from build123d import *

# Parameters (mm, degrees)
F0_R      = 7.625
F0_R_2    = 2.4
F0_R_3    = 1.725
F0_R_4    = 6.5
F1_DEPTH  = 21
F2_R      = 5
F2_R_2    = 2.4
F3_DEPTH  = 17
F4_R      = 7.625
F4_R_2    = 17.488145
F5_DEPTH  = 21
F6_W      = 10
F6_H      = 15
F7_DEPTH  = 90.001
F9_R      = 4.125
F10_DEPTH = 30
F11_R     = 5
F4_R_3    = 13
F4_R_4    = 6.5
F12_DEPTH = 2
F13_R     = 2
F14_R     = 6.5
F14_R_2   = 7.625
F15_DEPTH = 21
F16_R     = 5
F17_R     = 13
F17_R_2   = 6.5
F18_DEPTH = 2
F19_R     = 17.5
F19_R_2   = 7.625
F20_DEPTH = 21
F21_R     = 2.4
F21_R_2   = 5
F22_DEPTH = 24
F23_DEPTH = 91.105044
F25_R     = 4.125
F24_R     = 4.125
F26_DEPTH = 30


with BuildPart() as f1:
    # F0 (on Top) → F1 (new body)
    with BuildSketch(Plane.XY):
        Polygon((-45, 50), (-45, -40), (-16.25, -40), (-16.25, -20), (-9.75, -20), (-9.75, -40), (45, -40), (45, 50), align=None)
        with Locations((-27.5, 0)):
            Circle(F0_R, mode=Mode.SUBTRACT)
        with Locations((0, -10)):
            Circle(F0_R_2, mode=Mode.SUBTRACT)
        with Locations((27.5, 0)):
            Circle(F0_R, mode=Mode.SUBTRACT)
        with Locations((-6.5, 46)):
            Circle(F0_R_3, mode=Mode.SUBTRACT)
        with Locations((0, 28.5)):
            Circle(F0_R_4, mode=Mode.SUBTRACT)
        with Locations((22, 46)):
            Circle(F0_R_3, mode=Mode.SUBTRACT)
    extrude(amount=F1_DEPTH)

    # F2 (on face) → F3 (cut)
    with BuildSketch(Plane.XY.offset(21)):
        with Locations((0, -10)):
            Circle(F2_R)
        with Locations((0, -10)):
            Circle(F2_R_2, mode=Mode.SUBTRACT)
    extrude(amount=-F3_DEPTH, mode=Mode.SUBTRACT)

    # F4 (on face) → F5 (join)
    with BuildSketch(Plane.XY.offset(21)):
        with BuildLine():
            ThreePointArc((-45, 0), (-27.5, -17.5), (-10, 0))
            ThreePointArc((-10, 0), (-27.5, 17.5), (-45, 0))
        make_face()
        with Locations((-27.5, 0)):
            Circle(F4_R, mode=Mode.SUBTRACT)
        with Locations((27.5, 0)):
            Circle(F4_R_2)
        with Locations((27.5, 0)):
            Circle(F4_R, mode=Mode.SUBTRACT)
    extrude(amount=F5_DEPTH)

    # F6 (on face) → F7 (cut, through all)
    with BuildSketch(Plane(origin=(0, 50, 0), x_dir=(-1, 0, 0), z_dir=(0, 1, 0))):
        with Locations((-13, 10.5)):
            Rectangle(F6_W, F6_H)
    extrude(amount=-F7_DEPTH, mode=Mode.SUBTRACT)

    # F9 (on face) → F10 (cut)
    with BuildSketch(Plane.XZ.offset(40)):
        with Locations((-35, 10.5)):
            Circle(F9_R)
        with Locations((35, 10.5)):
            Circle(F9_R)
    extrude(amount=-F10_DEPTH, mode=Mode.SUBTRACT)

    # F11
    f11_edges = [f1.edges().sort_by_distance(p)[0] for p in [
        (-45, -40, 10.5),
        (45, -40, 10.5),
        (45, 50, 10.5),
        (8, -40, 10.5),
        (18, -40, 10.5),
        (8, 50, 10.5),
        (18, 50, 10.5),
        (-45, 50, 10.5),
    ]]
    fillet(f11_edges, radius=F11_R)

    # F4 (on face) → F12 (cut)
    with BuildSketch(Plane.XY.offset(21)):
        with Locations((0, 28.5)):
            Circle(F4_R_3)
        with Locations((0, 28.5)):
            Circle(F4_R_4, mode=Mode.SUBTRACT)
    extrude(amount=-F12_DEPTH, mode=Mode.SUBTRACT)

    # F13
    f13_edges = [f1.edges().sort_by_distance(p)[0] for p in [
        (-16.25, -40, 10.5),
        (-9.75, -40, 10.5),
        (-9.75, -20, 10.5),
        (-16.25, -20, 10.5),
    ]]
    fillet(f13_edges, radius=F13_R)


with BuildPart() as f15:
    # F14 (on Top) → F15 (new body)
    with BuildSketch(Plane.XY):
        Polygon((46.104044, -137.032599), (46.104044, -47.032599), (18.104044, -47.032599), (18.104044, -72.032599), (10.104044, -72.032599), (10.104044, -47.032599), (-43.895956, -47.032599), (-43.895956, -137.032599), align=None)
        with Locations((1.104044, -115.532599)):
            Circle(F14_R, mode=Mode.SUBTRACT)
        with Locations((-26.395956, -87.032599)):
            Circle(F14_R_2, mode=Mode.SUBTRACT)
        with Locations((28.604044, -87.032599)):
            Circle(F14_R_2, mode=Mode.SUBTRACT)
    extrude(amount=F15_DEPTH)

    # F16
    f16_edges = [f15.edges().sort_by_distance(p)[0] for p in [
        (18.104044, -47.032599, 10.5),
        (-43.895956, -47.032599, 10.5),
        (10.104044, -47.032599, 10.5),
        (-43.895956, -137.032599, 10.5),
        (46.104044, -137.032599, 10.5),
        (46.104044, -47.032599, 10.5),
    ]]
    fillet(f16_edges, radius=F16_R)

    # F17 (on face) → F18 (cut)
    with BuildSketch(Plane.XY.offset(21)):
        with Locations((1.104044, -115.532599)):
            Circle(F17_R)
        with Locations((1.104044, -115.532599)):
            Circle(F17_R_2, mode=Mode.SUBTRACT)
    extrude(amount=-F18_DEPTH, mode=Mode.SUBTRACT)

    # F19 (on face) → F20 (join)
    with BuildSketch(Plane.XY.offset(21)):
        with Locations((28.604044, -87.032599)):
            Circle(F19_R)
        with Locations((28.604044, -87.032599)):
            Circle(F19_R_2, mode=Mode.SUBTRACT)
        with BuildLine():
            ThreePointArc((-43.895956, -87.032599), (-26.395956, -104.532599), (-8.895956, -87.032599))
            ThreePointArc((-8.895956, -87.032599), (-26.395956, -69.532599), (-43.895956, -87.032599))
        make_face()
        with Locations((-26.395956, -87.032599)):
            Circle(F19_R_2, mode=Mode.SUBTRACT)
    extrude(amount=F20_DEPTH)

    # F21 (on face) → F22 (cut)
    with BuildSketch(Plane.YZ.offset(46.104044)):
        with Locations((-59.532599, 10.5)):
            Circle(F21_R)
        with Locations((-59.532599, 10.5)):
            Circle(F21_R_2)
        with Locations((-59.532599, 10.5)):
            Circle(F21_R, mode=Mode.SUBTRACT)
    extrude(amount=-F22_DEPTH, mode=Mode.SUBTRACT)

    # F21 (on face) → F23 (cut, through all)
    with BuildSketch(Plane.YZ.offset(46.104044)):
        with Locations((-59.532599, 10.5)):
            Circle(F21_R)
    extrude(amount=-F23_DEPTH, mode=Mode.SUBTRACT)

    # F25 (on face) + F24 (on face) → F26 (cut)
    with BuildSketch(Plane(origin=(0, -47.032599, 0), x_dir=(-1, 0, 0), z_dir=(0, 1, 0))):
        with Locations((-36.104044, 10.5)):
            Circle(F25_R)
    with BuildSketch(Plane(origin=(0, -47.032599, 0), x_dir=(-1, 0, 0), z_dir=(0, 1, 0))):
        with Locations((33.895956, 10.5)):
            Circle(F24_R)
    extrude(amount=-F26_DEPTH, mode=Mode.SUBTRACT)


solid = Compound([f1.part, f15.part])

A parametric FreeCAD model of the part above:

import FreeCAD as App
import Part
import Sketcher
from FreeCAD import Vector


def edges_at(feature, points):
    """Names of the edges that pass closest to the given points."""
    edges = feature.Shape.Edges
    near = lambda p: min(range(len(edges)), key=lambda i: edges[i].distToShape(Part.Vertex(*p))[0])
    return sorted({f"Edge{near(p) + 1}" for p in points})

doc = App.newDocument("Part")
body = doc.addObject("PartDesign::Body", "Body")

# Sketch on XY plane
sketch1 = body.newObject("Sketcher::SketchObject", "Sketch")
sketch1.AttachmentSupport = (doc.getObject("XY_Plane"), [""])
sketch1.MapMode = "FlatFace"
sketch1.addGeometry(Part.LineSegment(Vector(-45, 50, 0), Vector(-45, -40, 0)), False)
sketch1.addGeometry(Part.LineSegment(Vector(-45, -40, 0), Vector(-16.25, -40, 0)), False)
sketch1.addGeometry(Part.LineSegment(Vector(-16.25, -40, 0), Vector(-16.25, -20, 0)), False)
sketch1.addGeometry(Part.LineSegment(Vector(-16.25, -20, 0), Vector(-9.75, -20, 0)), False)
sketch1.addGeometry(Part.LineSegment(Vector(-9.75, -20, 0), Vector(-9.75, -40, 0)), False)
sketch1.addGeometry(Part.LineSegment(Vector(-9.75, -40, 0), Vector(45, -40, 0)), False)
sketch1.addGeometry(Part.LineSegment(Vector(45, -40, 0), Vector(45, 50, 0)), False)
sketch1.addGeometry(Part.LineSegment(Vector(45, 50, 0), Vector(-45, 50, 0)), False)
sketch1.addGeometry(Part.Circle(Vector(-27.5, 0, 0), Vector(0, 0, 1), 7.625), False)
sketch1.addGeometry(Part.Circle(Vector(0, -10, 0), Vector(0, 0, 1), 2.4), False)
sketch1.addGeometry(Part.Circle(Vector(27.5, 0, 0), Vector(0, 0, 1), 7.625), False)
sketch1.addGeometry(Part.Circle(Vector(-6.5, 46, 0), Vector(0, 0, 1), 1.725), False)
sketch1.addGeometry(Part.Circle(Vector(0, 28.5, 0), Vector(0, 0, 1), 6.5), False)
sketch1.addGeometry(Part.Circle(Vector(22, 46, 0), Vector(0, 0, 1), 1.725), False)
sketch1.addConstraint(Sketcher.Constraint("Coincident", 0, 2, 1, 1))
sketch1.addConstraint(Sketcher.Constraint("Coincident", 1, 2, 2, 1))
sketch1.addConstraint(Sketcher.Constraint("Coincident", 2, 2, 3, 1))
sketch1.addConstraint(Sketcher.Constraint("Coincident", 3, 2, 4, 1))
sketch1.addConstraint(Sketcher.Constraint("Coincident", 4, 2, 5, 1))
sketch1.addConstraint(Sketcher.Constraint("Coincident", 5, 2, 6, 1))
sketch1.addConstraint(Sketcher.Constraint("Coincident", 6, 2, 7, 1))
sketch1.addConstraint(Sketcher.Constraint("Coincident", 7, 2, 0, 1))
sketch1.addConstraint(Sketcher.Constraint("Vertical", 0))
sketch1.addConstraint(Sketcher.Constraint("Horizontal", 1))
sketch1.addConstraint(Sketcher.Constraint("Vertical", 2))
sketch1.addConstraint(Sketcher.Constraint("Horizontal", 3))
sketch1.addConstraint(Sketcher.Constraint("Vertical", 4))
sketch1.addConstraint(Sketcher.Constraint("Horizontal", 5))
sketch1.addConstraint(Sketcher.Constraint("Vertical", 6))
sketch1.addConstraint(Sketcher.Constraint("Horizontal", 7))
sketch1.addConstraint(Sketcher.Constraint("Equal", 8, 10))
sketch1.addConstraint(Sketcher.Constraint("Equal", 11, 13))
sketch1.addConstraint(Sketcher.Constraint("Symmetric", 8, 3, 10, 3, -1, 1))
sketch1.addConstraint(Sketcher.Constraint("Symmetric", 0, 2, 5, 2, -2))
sketch1.addConstraint(Sketcher.Constraint("PointOnObject", 8, 3, -1))
sketch1.addConstraint(Sketcher.Constraint("PointOnObject", 9, 3, -2))
sketch1.addConstraint(Sketcher.Constraint("PointOnObject", 12, 3, -2))
sketch1.addConstraint(Sketcher.Constraint("Horizontal", 11, 3, 13, 3))
sketch1.addConstraint(Sketcher.Constraint("Equal", 7, 0))
sketch1.addConstraint(Sketcher.Constraint("Diameter", 12, 13.0))
sketch1.addConstraint(Sketcher.Constraint("Diameter", 9, 4.8))
sketch1.addConstraint(Sketcher.Constraint("Diameter", 8, 15.25))
sketch1.addConstraint(Sketcher.Constraint("Diameter", 11, 3.45))
sketch1.addConstraint(Sketcher.Constraint("DistanceX", 7, 2, 7, 1, 90.0))
sketch1.addConstraint(Sketcher.Constraint("DistanceY", 2, 1, 2, 2, 20.0))
sketch1.addConstraint(Sketcher.Constraint("DistanceX", 3, 1, 3, 2, 6.5))
sketch1.addConstraint(Sketcher.Constraint("DistanceY", 9, 3, -1, 1, 10.0))
sketch1.addConstraint(Sketcher.Constraint("DistanceY", -1, 1, 11, 3, 46.0))
sketch1.addConstraint(Sketcher.Constraint("DistanceX", -1, 1, 13, 3, 22.0))
sketch1.addConstraint(Sketcher.Constraint("DistanceY", 0, 2, -1, 1, 40.0))
sketch1.addConstraint(Sketcher.Constraint("DistanceX", 8, 3, 10, 3, 55.0))
sketch1.addConstraint(Sketcher.Constraint("DistanceX", 8, 3, 11, 3, 21.0))
sketch1.addConstraint(Sketcher.Constraint("DistanceX", 1, 1, 1, 2, 28.75))
sketch1.addConstraint(Sketcher.Constraint("DistanceY", -1, 1, 12, 3, 28.5))
pad1 = body.newObject("PartDesign::Pad", "Pad")
pad1.Profile = sketch1
pad1.Length = 21

# Sketch on XY plane
sketch2 = body.newObject("Sketcher::SketchObject", "Sketch001")
sketch2.AttachmentSupport = (doc.getObject("XY_Plane"), [""])
sketch2.MapMode = "FlatFace"
sketch2.AttachmentOffset = App.Placement(Vector(0, 0, 21), App.Rotation())
sketch2.addGeometry(Part.Circle(Vector(0, -10, 0), Vector(0, 0, 1), 5), False)
sketch2.addGeometry(Part.Circle(Vector(0, -10, 0), Vector(0, 0, 1), 2.4), False)
sketch2.addConstraint(Sketcher.Constraint("Coincident", 1, 3, 0, 3))
sketch2.addConstraint(Sketcher.Constraint("PointOnObject", 0, 3, -2))
sketch2.addConstraint(Sketcher.Constraint("Diameter", 0, 10.0))
sketch2.addConstraint(Sketcher.Constraint("Diameter", 1, 4.8))
sketch2.addConstraint(Sketcher.Constraint("DistanceY", 0, 3, -1, 1, 10.0))
pocket1 = body.newObject("PartDesign::Pocket", "Pocket")
pocket1.Profile = sketch2
pocket1.Length = 17

# Sketch on XY plane
sketch3 = body.newObject("Sketcher::SketchObject", "Sketch002")
sketch3.AttachmentSupport = (doc.getObject("XY_Plane"), [""])
sketch3.MapMode = "FlatFace"
sketch3.AttachmentOffset = App.Placement(Vector(0, 0, 21), App.Rotation())
sketch3.addGeometry(Part.Circle(Vector(-27.5, 0, 0), Vector(0, 0, 1), 17.5), False)
sketch3.addGeometry(Part.Circle(Vector(-27.5, 0, 0), Vector(0, 0, 1), 7.625), False)
sketch3.addGeometry(Part.Circle(Vector(27.5, 0, 0), Vector(0, 0, 1), 17.488145), False)
sketch3.addGeometry(Part.Circle(Vector(27.5, 0, 0), Vector(0, 0, 1), 7.625), False)
sketch3.addConstraint(Sketcher.Constraint("Coincident", 1, 3, 0, 3))
sketch3.addConstraint(Sketcher.Constraint("Coincident", 3, 3, 2, 3))
sketch3.addConstraint(Sketcher.Constraint("Equal", 1, 3))
sketch3.addConstraint(Sketcher.Constraint("Symmetric", 0, 3, 2, 3, -1, 1))
sketch3.addConstraint(Sketcher.Constraint("PointOnObject", 0, 3, -1))
sketch3.addConstraint(Sketcher.Constraint("Diameter", 0, 35.0))
sketch3.addConstraint(Sketcher.Constraint("Diameter", 1, 15.25))
sketch3.addConstraint(Sketcher.Constraint("DistanceX", 0, 3, 2, 3, 55.0))
sketch3.addConstraint(Sketcher.Constraint("Diameter", 2, 34.97629))
pad2 = body.newObject("PartDesign::Pad", "Pad001")
pad2.Profile = sketch3
pad2.Length = 21

# Sketch on XZ plane
sketch4 = body.newObject("Sketcher::SketchObject", "Sketch003")
sketch4.AttachmentSupport = (doc.getObject("XZ_Plane"), [""])
sketch4.MapMode = "FlatFace"
sketch4.AttachmentOffset = App.Placement(Vector(0, 0, -50), App.Rotation())
sketch4.addGeometry(Part.LineSegment(Vector(18, 18, 0), Vector(18, 3, 0)), False)
sketch4.addGeometry(Part.LineSegment(Vector(18, 3, 0), Vector(8, 3, 0)), False)
sketch4.addGeometry(Part.LineSegment(Vector(8, 3, 0), Vector(8, 18, 0)), False)
sketch4.addGeometry(Part.LineSegment(Vector(8, 18, 0), Vector(18, 18, 0)), False)
sketch4.addConstraint(Sketcher.Constraint("Coincident", 0, 2, 1, 1))
sketch4.addConstraint(Sketcher.Constraint("Coincident", 1, 2, 2, 1))
sketch4.addConstraint(Sketcher.Constraint("Coincident", 2, 2, 3, 1))
sketch4.addConstraint(Sketcher.Constraint("Coincident", 3, 2, 0, 1))
sketch4.addConstraint(Sketcher.Constraint("Vertical", 0))
sketch4.addConstraint(Sketcher.Constraint("Horizontal", 1))
sketch4.addConstraint(Sketcher.Constraint("Vertical", 2))
sketch4.addConstraint(Sketcher.Constraint("Horizontal", 3))
sketch4.addConstraint(Sketcher.Constraint("DistanceX", 1, 2, 1, 1, 10.0))
sketch4.addConstraint(Sketcher.Constraint("DistanceY", 0, 2, 0, 1, 15.0))
sketch4.addConstraint(Sketcher.Constraint("DistanceX", -1, 1, 0, 2, 18.0))
sketch4.addConstraint(Sketcher.Constraint("DistanceY", -1, 1, 0, 2, 3.0))
pocket2 = body.newObject("PartDesign::Pocket", "Pocket001")
pocket2.Profile = sketch4
pocket2.Type = "ThroughAll"
pocket2.Reversed = True

# Sketch on XZ plane
sketch5 = body.newObject("Sketcher::SketchObject", "Sketch004")
sketch5.AttachmentSupport = (doc.getObject("XZ_Plane"), [""])
sketch5.MapMode = "FlatFace"
sketch5.AttachmentOffset = App.Placement(Vector(0, 0, 40), App.Rotation())
sketch5.addGeometry(Part.Circle(Vector(-35, 10.5, 0), Vector(0, 0, 1), 4.125), False)
sketch5.addGeometry(Part.Circle(Vector(35, 10.5, 0), Vector(0, 0, 1), 4.125), False)
sketch5.addConstraint(Sketcher.Constraint("Equal", 0, 1))
sketch5.addConstraint(Sketcher.Constraint("Symmetric", 0, 3, 1, 3, -2))
sketch5.addConstraint(Sketcher.Constraint("Diameter", 0, 8.25))
sketch5.addConstraint(Sketcher.Constraint("DistanceX", 0, 3, -1, 1, 35.0))
sketch5.addConstraint(Sketcher.Constraint("DistanceY", -1, 1, 0, 3, 10.5))
pocket3 = body.newObject("PartDesign::Pocket", "Pocket002")
pocket3.Profile = sketch5
pocket3.Length = 30
doc.recompute()

fillet = body.newObject("PartDesign::Fillet", "Fillet")
fillet.Base = (pocket3, edges_at(pocket3, [
    (-45, -40, 10.5),
    (45, -40, 10.5),
    (45, 50, 10.5),
    (8, -40, 10.5),
    (18, -40, 10.5),
    (8, 50, 10.5),
    (18, 50, 10.5),
    (-45, 50, 10.5),
]))
fillet.Radius = 5

# Sketch on XY plane
sketch6 = body.newObject("Sketcher::SketchObject", "Sketch005")
sketch6.AttachmentSupport = (doc.getObject("XY_Plane"), [""])
sketch6.MapMode = "FlatFace"
sketch6.AttachmentOffset = App.Placement(Vector(0, 0, 21), App.Rotation())
sketch6.addGeometry(Part.Circle(Vector(0, 28.5, 0), Vector(0, 0, 1), 13), False)
sketch6.addGeometry(Part.Circle(Vector(0, 28.5, 0), Vector(0, 0, 1), 6.5), False)
sketch6.addConstraint(Sketcher.Constraint("Coincident", 1, 3, 0, 3))
sketch6.addConstraint(Sketcher.Constraint("PointOnObject", 0, 3, -2))
sketch6.addConstraint(Sketcher.Constraint("Diameter", 0, 26.0))
sketch6.addConstraint(Sketcher.Constraint("Diameter", 1, 13.0))
sketch6.addConstraint(Sketcher.Constraint("DistanceY", -1, 1, 0, 3, 28.5))
pocket4 = body.newObject("PartDesign::Pocket", "Pocket003")
pocket4.Profile = sketch6
pocket4.Length = 2
doc.recompute()

fillet2 = body.newObject("PartDesign::Fillet", "Fillet001")
fillet2.Base = (pocket4, edges_at(pocket4, [
    (-16.25, -40, 10.5),
    (-9.75, -40, 10.5),
    (-9.75, -20, 10.5),
    (-16.25, -20, 10.5),
]))
fillet2.Radius = 2
body2 = doc.addObject("PartDesign::Body", "Body001")

# Sketch on XY plane
sketch7 = body2.newObject("Sketcher::SketchObject", "Sketch006")
sketch7.AttachmentSupport = (doc.getObject("XY_Plane001"), [""])
sketch7.MapMode = "FlatFace"
sketch7.addGeometry(Part.LineSegment(Vector(46.104044, -137.032599, 0), Vector(46.104044, -47.032599, 0)), False)
sketch7.addGeometry(Part.LineSegment(Vector(46.104044, -47.032599, 0), Vector(18.104044, -47.032599, 0)), False)
sketch7.addGeometry(Part.LineSegment(Vector(18.104044, -47.032599, 0), Vector(18.104044, -72.032599, 0)), False)
sketch7.addGeometry(Part.LineSegment(Vector(18.104044, -72.032599, 0), Vector(10.104044, -72.032599, 0)), False)
sketch7.addGeometry(Part.LineSegment(Vector(10.104044, -72.032599, 0), Vector(10.104044, -47.032599, 0)), False)
sketch7.addGeometry(Part.LineSegment(Vector(10.104044, -47.032599, 0), Vector(-43.895956, -47.032599, 0)), False)
sketch7.addGeometry(Part.LineSegment(Vector(-43.895956, -47.032599, 0), Vector(-43.895956, -137.032599, 0)), False)
sketch7.addGeometry(Part.LineSegment(Vector(-43.895956, -137.032599, 0), Vector(46.104044, -137.032599, 0)), False)
sketch7.addGeometry(Part.Circle(Vector(1.104044, -115.532599, 0), Vector(0, 0, 1), 6.5), False)
sketch7.addGeometry(Part.Circle(Vector(-26.395956, -87.032599, 0), Vector(0, 0, 1), 7.625), False)
sketch7.addGeometry(Part.Circle(Vector(28.604044, -87.032599, 0), Vector(0, 0, 1), 7.625), False)
sketch7.addConstraint(Sketcher.Constraint("Coincident", 0, 2, 1, 1))
sketch7.addConstraint(Sketcher.Constraint("Coincident", 1, 2, 2, 1))
sketch7.addConstraint(Sketcher.Constraint("Coincident", 2, 2, 3, 1))
sketch7.addConstraint(Sketcher.Constraint("Coincident", 3, 2, 4, 1))
sketch7.addConstraint(Sketcher.Constraint("Coincident", 4, 2, 5, 1))
sketch7.addConstraint(Sketcher.Constraint("Coincident", 5, 2, 6, 1))
sketch7.addConstraint(Sketcher.Constraint("Coincident", 6, 2, 7, 1))
sketch7.addConstraint(Sketcher.Constraint("Coincident", 7, 2, 0, 1))
sketch7.addConstraint(Sketcher.Constraint("Vertical", 0))
sketch7.addConstraint(Sketcher.Constraint("Horizontal", 1))
sketch7.addConstraint(Sketcher.Constraint("Vertical", 2))
sketch7.addConstraint(Sketcher.Constraint("Horizontal", 3))
sketch7.addConstraint(Sketcher.Constraint("Vertical", 4))
sketch7.addConstraint(Sketcher.Constraint("Horizontal", 5))
sketch7.addConstraint(Sketcher.Constraint("Vertical", 6))
sketch7.addConstraint(Sketcher.Constraint("Horizontal", 7))
sketch7.addConstraint(Sketcher.Constraint("Equal", 9, 10))
sketch7.addConstraint(Sketcher.Constraint("Horizontal", 9, 3, 10, 3))
sketch7.addConstraint(Sketcher.Constraint("Horizontal", 1, 2, 4, 2))
sketch7.addConstraint(Sketcher.Constraint("Equal", 7, 0))
sketch7.addConstraint(Sketcher.Constraint("Diameter", 8, 13.0))
sketch7.addConstraint(Sketcher.Constraint("Diameter", 9, 15.25))
sketch7.addConstraint(Sketcher.Constraint("DistanceX", 1, 2, 1, 1, 28.0))
sketch7.addConstraint(Sketcher.Constraint("DistanceX", 3, 2, 3, 1, 8.0))
sketch7.addConstraint(Sketcher.Constraint("DistanceX", 5, 2, 5, 1, 54.0))
sketch7.addConstraint(Sketcher.Constraint("DistanceY", 2, 2, 2, 1, 25.0))
sketch7.addConstraint(Sketcher.Constraint("DistanceX", 9, 3, 10, 3, 55.0))
sketch7.addConstraint(Sketcher.Constraint("DistanceY", 10, 3, 0, 2, 40.0))
sketch7.addConstraint(Sketcher.Constraint("DistanceX", 8, 3, 0, 2, 45.0))
sketch7.addConstraint(Sketcher.Constraint("DistanceX", 9, 3, 8, 3, 27.5))
sketch7.addConstraint(Sketcher.Constraint("DistanceY", 8, 3, 9, 3, 28.5))
sketch7.addConstraint(Sketcher.Constraint("DistanceY", 8, 3, -1, 1, 115.532599))
sketch7.addConstraint(Sketcher.Constraint("DistanceX", -1, 1, 8, 3, 1.104044))
pad3 = body2.newObject("PartDesign::Pad", "Pad002")
pad3.Profile = sketch7
pad3.Length = 21
doc.recompute()

fillet3 = body2.newObject("PartDesign::Fillet", "Fillet002")
fillet3.Base = (pad3, edges_at(pad3, [
    (18.104, -47.033, 10.5),
    (-43.896, -47.033, 10.5),
    (10.104, -47.033, 10.5),
    (-43.896, -137.033, 10.5),
    (46.104, -137.033, 10.5),
    (46.104, -47.033, 10.5),
]))
fillet3.Radius = 5

# Sketch on XY plane
sketch8 = body2.newObject("Sketcher::SketchObject", "Sketch007")
sketch8.AttachmentSupport = (doc.getObject("XY_Plane001"), [""])
sketch8.MapMode = "FlatFace"
sketch8.AttachmentOffset = App.Placement(Vector(0, 0, 21), App.Rotation())
sketch8.addGeometry(Part.Circle(Vector(1.104044, -115.532599, 0), Vector(0, 0, 1), 13), False)
sketch8.addGeometry(Part.Circle(Vector(1.104044, -115.532599, 0), Vector(0, 0, 1), 6.5), False)
sketch8.addConstraint(Sketcher.Constraint("Coincident", 1, 3, 0, 3))
sketch8.addConstraint(Sketcher.Constraint("Diameter", 0, 26.0))
sketch8.addConstraint(Sketcher.Constraint("Diameter", 1, 13.0))
sketch8.addConstraint(Sketcher.Constraint("DistanceY", 0, 3, -1, 1, 115.532599))
sketch8.addConstraint(Sketcher.Constraint("DistanceX", -1, 1, 0, 3, 1.104044))
pocket5 = body2.newObject("PartDesign::Pocket", "Pocket004")
pocket5.Profile = sketch8
pocket5.Length = 2

# Sketch on XY plane
sketch9 = body2.newObject("Sketcher::SketchObject", "Sketch008")
sketch9.AttachmentSupport = (doc.getObject("XY_Plane001"), [""])
sketch9.MapMode = "FlatFace"
sketch9.AttachmentOffset = App.Placement(Vector(0, 0, 21), App.Rotation())
sketch9.addGeometry(Part.Circle(Vector(28.604044, -87.032599, 0), Vector(0, 0, 1), 17.5), False)
sketch9.addGeometry(Part.Circle(Vector(28.604044, -87.032599, 0), Vector(0, 0, 1), 7.625), False)
sketch9.addGeometry(Part.Circle(Vector(-26.395956, -87.032599, 0), Vector(0, 0, 1), 17.5), False)
sketch9.addGeometry(Part.Circle(Vector(-26.395956, -87.032599, 0), Vector(0, 0, 1), 7.625), False)
sketch9.addConstraint(Sketcher.Constraint("Coincident", 1, 3, 0, 3))
sketch9.addConstraint(Sketcher.Constraint("Coincident", 3, 3, 2, 3))
sketch9.addConstraint(Sketcher.Constraint("Equal", 0, 2))
sketch9.addConstraint(Sketcher.Constraint("Equal", 1, 3))
sketch9.addConstraint(Sketcher.Constraint("Horizontal", 1, 3, 2, 3))
sketch9.addConstraint(Sketcher.Constraint("Diameter", 0, 35.0))
sketch9.addConstraint(Sketcher.Constraint("Diameter", 1, 15.25))
sketch9.addConstraint(Sketcher.Constraint("DistanceX", 2, 3, 0, 3, 55.0))
sketch9.addConstraint(Sketcher.Constraint("DistanceY", 0, 3, -1, 1, 87.032599))
sketch9.addConstraint(Sketcher.Constraint("DistanceX", -1, 1, 0, 3, 28.604044))
pad4 = body2.newObject("PartDesign::Pad", "Pad003")
pad4.Profile = sketch9
pad4.Length = 21

# Sketch on YZ plane
sketch10 = body2.newObject("Sketcher::SketchObject", "Sketch009")
sketch10.AttachmentSupport = (doc.getObject("YZ_Plane001"), [""])
sketch10.MapMode = "FlatFace"
sketch10.AttachmentOffset = App.Placement(Vector(0, 0, 46.104044), App.Rotation())
sketch10.addGeometry(Part.Circle(Vector(-59.532599, 10.5, 0), Vector(0, 0, 1), 5), False)
sketch10.addGeometry(Part.Circle(Vector(-59.532599, 10.5, 0), Vector(0, 0, 1), 2.4), False)
sketch10.addConstraint(Sketcher.Constraint("Coincident", 1, 3, 0, 3))
sketch10.addConstraint(Sketcher.Constraint("Diameter", 0, 10.0))
sketch10.addConstraint(Sketcher.Constraint("Diameter", 1, 4.8))
sketch10.addConstraint(Sketcher.Constraint("DistanceY", -1, 1, 0, 3, 10.5))
sketch10.addConstraint(Sketcher.Constraint("DistanceX", 0, 3, -1, 1, 59.532599))
pocket6 = body2.newObject("PartDesign::Pocket", "Pocket005")
pocket6.Profile = sketch10
pocket6.Length = 24

# Sketch on YZ plane
sketch11 = body2.newObject("Sketcher::SketchObject", "Sketch010")
sketch11.AttachmentSupport = (doc.getObject("YZ_Plane001"), [""])
sketch11.MapMode = "FlatFace"
sketch11.AttachmentOffset = App.Placement(Vector(0, 0, 46.104044), App.Rotation())
sketch11.addGeometry(Part.Circle(Vector(-59.532599, 10.5, 0), Vector(0, 0, 1), 2.4), False)
sketch11.addConstraint(Sketcher.Constraint("Diameter", 0, 4.8))
sketch11.addConstraint(Sketcher.Constraint("DistanceY", -1, 1, 0, 3, 10.5))
sketch11.addConstraint(Sketcher.Constraint("DistanceX", 0, 3, -1, 1, 59.532599))
pocket7 = body2.newObject("PartDesign::Pocket", "Pocket006")
pocket7.Profile = sketch11
pocket7.Type = "ThroughAll"

# Sketch on XZ plane
sketch12 = body2.newObject("Sketcher::SketchObject", "Sketch011")
sketch12.AttachmentSupport = (doc.getObject("XZ_Plane001"), [""])
sketch12.MapMode = "FlatFace"
sketch12.AttachmentOffset = App.Placement(Vector(0, 0, 47.032599), App.Rotation())
sketch12.addGeometry(Part.Circle(Vector(36.104044, 10.5, 0), Vector(0, 0, 1), 4.125), False)
sketch12.addGeometry(Part.Circle(Vector(-33.895956, 10.5, 0), Vector(0, 0, 1), 4.125), False)
sketch12.addConstraint(Sketcher.Constraint("Equal", 0, 1))
sketch12.addConstraint(Sketcher.Constraint("Horizontal", 0, 3, 1, 3))
sketch12.addConstraint(Sketcher.Constraint("Diameter", 0, 8.25))
sketch12.addConstraint(Sketcher.Constraint("DistanceX", 1, 3, 0, 3, 70.0))
sketch12.addConstraint(Sketcher.Constraint("DistanceY", -1, 1, 0, 3, 10.5))
sketch12.addConstraint(Sketcher.Constraint("DistanceX", -1, 1, 0, 3, 36.104044))
pocket8 = body2.newObject("PartDesign::Pocket", "Pocket007")
pocket8.Profile = sketch12
pocket8.Length = 30
pocket8.Reversed = True

doc.recompute()
